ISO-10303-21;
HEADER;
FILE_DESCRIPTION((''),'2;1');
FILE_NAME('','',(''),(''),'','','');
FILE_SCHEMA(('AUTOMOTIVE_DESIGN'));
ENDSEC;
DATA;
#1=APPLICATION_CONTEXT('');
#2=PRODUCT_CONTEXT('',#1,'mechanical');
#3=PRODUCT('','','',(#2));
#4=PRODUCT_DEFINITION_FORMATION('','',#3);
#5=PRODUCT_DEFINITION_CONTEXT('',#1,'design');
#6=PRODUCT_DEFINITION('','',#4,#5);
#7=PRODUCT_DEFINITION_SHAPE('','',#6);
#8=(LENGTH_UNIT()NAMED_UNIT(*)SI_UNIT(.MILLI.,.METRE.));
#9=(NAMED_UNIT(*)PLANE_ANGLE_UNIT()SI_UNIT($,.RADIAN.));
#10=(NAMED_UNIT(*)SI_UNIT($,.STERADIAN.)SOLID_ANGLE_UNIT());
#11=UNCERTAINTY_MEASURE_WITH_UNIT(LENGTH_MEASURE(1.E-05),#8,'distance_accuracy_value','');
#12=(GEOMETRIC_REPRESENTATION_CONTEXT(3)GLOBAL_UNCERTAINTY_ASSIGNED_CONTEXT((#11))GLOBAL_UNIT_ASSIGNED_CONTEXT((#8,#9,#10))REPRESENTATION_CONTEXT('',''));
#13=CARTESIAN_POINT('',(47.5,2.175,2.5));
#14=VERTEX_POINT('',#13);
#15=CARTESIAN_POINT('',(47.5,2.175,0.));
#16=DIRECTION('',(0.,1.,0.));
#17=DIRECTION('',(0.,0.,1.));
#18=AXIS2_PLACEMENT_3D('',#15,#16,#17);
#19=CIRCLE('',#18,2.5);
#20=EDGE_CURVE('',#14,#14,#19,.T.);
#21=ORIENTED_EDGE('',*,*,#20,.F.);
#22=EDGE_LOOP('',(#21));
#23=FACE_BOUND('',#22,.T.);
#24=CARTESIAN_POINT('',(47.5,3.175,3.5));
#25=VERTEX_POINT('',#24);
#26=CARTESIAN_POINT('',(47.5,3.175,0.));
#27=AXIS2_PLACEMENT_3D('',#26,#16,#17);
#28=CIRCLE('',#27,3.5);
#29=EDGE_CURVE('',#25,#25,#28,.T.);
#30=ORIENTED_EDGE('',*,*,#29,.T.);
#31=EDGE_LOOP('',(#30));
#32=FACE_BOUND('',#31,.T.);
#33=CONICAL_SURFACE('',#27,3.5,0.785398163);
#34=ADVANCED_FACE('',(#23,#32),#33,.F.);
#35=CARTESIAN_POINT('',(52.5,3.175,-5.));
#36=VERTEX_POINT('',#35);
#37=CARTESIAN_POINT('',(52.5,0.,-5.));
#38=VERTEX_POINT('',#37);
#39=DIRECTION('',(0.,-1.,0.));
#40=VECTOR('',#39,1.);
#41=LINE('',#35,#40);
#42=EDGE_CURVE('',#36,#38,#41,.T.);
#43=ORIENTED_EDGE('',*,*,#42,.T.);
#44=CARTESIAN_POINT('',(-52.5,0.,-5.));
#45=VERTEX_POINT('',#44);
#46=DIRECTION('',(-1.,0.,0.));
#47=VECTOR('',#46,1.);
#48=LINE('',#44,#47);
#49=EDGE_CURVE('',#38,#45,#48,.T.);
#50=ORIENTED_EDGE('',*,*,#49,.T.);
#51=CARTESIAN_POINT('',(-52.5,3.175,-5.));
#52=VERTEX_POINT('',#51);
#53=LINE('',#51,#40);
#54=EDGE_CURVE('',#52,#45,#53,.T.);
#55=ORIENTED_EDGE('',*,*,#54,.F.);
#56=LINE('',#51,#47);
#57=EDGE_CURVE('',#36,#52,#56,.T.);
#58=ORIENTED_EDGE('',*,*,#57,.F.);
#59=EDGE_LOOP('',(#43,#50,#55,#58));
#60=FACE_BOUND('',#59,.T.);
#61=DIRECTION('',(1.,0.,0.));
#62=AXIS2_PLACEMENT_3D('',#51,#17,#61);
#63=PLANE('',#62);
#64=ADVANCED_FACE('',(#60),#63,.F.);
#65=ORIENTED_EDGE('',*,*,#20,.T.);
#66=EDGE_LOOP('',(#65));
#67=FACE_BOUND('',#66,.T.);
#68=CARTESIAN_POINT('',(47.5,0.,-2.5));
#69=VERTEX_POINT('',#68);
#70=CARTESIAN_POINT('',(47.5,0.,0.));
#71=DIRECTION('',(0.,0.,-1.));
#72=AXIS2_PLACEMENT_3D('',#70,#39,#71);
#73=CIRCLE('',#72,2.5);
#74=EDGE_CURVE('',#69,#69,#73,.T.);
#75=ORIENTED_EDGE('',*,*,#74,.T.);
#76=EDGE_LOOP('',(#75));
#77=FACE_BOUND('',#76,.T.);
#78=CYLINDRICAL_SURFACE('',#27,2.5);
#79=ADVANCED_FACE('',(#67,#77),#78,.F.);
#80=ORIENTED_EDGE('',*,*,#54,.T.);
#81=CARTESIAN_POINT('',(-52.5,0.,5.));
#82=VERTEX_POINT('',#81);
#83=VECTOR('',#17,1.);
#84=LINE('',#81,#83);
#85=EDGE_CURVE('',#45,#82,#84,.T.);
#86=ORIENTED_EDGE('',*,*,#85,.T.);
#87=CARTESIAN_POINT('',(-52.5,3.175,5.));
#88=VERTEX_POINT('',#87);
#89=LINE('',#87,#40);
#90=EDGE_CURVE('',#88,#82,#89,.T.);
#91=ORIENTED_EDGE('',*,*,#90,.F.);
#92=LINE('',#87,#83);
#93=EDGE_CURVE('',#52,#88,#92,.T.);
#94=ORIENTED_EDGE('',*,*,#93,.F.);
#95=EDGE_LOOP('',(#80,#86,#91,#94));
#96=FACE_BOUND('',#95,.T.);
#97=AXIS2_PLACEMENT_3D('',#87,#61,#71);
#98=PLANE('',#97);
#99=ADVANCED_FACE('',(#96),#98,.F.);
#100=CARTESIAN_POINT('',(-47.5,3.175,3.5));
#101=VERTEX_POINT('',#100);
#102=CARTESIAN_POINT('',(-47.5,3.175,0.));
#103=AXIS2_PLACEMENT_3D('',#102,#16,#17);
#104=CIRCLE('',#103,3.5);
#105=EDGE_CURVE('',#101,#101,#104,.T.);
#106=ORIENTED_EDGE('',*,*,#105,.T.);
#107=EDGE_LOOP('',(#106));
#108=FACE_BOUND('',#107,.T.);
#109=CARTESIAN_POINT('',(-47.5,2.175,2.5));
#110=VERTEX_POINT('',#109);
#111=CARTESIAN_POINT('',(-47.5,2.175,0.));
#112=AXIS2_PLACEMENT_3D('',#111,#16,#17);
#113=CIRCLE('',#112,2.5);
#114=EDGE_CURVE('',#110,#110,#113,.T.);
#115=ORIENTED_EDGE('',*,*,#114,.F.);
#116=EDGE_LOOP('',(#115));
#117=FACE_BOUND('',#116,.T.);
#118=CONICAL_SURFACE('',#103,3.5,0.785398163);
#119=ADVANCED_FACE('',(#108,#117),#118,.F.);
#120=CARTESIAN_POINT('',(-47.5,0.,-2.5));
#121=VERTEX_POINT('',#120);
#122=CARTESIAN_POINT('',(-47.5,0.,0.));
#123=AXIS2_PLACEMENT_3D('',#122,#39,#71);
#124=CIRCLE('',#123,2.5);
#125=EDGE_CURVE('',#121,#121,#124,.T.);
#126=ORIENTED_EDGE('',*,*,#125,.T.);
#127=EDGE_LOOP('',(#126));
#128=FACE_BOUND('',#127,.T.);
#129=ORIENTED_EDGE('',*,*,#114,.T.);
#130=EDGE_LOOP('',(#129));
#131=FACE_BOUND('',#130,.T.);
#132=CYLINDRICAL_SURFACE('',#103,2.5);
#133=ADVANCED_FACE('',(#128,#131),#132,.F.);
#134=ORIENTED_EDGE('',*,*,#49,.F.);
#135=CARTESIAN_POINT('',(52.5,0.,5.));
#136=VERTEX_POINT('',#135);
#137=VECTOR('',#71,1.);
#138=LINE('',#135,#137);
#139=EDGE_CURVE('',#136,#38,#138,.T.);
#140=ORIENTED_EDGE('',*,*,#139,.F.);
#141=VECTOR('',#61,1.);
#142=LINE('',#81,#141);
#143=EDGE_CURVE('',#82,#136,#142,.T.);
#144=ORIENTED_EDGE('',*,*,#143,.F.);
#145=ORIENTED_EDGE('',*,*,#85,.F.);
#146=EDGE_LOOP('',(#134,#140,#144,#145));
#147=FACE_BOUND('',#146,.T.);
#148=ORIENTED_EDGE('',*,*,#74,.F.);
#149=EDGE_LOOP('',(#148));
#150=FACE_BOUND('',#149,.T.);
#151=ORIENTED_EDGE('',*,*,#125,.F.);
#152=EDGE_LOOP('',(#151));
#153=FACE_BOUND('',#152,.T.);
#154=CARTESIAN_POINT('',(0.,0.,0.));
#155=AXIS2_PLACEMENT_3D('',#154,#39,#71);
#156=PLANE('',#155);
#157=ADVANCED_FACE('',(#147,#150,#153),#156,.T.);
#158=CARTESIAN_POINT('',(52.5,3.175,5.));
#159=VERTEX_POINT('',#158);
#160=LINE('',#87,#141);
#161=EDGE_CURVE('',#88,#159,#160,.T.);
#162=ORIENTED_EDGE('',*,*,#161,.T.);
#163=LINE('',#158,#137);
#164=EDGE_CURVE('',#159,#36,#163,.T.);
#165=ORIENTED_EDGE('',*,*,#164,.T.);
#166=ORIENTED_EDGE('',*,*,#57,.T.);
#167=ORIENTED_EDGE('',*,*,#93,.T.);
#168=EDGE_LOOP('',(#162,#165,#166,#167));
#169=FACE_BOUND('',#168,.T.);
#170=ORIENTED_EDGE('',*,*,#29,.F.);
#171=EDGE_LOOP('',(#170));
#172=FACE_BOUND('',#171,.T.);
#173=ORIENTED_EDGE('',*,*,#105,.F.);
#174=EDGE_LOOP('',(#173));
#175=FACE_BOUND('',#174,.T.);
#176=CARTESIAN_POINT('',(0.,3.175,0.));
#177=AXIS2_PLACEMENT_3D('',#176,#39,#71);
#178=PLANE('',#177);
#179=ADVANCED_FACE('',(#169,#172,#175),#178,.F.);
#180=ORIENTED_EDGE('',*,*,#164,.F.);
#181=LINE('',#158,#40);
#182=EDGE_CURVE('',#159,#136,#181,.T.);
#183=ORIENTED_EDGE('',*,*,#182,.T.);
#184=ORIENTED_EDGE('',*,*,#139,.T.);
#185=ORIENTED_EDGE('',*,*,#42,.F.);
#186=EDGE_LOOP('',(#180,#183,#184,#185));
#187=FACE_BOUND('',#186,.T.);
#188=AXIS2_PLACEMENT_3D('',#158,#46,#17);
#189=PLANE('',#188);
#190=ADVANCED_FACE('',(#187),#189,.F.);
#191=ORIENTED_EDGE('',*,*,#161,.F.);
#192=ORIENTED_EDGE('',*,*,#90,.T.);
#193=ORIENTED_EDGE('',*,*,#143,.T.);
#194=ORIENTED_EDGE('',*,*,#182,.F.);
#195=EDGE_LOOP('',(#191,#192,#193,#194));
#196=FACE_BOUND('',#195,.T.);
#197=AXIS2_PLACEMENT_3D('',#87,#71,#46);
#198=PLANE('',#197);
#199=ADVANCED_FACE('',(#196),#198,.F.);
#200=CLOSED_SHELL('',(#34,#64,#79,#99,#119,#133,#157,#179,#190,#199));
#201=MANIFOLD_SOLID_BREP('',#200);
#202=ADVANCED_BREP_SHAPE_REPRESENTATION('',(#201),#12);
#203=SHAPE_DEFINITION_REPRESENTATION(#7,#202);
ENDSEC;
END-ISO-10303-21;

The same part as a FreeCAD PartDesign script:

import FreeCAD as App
import Part
import Sketcher

V = App.Vector
Q = App.Units.Quantity


def add_polygon(sketch, points):
    """Adds a closed chain of lines whose ends are joined by coincident constraints."""
    first, n = sketch.GeometryCount, len(points)
    for a, b in zip(points, points[1:] + points[:1]):
        sketch.addGeometry(Part.LineSegment(App.Vector(*a, 0), App.Vector(*b, 0)), False)
    for i in range(n):
        sketch.addConstraint(Sketcher.Constraint("Coincident", first + i, 2, first + (i + 1) % n, 1))

doc = App.newDocument("Part")
body = doc.addObject("PartDesign::Body", "Body")

sketch1 = body.newObject("Sketcher::SketchObject", "Sketch")
sketch1.AttachmentSupport = (doc.getObject("XZ_Plane"), [""])
sketch1.MapMode = "FlatFace"
add_polygon(sketch1, [(-52.5, -5), (-52.5, 5), (52.5, 5), (52.5, -5)])
sketch1.addConstraint(Sketcher.Constraint("Vertical", 0))
sketch1.addConstraint(Sketcher.Constraint("Horizontal", 1))
sketch1.addConstraint(Sketcher.Constraint("Vertical", 2))
sketch1.addConstraint(Sketcher.Constraint("Horizontal", 3))
sketch1.addConstraint(Sketcher.Constraint("Symmetric", 0, 2, 2, 2, -1, 1))
sketch1.addConstraint(Sketcher.Constraint("DistanceX", 1, 1, 1, 2, 105.0))
sketch1.addConstraint(Sketcher.Constraint("DistanceY", 0, 1, 0, 2, 10.0))
pad1 = body.newObject("PartDesign::Pad", "Pad")
pad1.Profile = sketch1
pad1.Length = 3.175
pad1.Reversed = True

sketch2 = body.newObject("Sketcher::SketchObject", "Sketch001")
sketch2.AttachmentSupport = (doc.getObject("YZ_Plane"), [""])
sketch2.MapMode = "FlatFace"
sketch2.AttachmentOffset = App.Placement(V(0, 0, 47.5), App.Rotation())
add_polygon(sketch2, [(0, 0), (3.175, 0), (3.175, 3.5), (2.175, 2.5), (0, 2.5)])
sketch2.addConstraint(Sketcher.Constraint("Horizontal", 0))
sketch2.addConstraint(Sketcher.Constraint("Vertical", 1))
sketch2.addConstraint(Sketcher.Constraint("Horizontal", 3))
sketch2.addConstraint(Sketcher.Constraint("Vertical", 4))
sketch2.addConstraint(Sketcher.Constraint("Coincident", 4, 2, -1, 1))
sketch2.addConstraint(Sketcher.Constraint("Angle", 2, Q("-135 deg")))
sketch2.addConstraint(Sketcher.Constraint("DistanceY", 1, 1, 1, 2, 3.5))
sketch2.addConstraint(Sketcher.Constraint("DistanceY", 4, 2, 4, 1, 2.5))
sketch2.addConstraint(Sketcher.Constraint("DistanceX", 0, 1, 0, 2, 3.175))
groove = body.newObject("PartDesign::Groove", "Groove")
groove.Profile = sketch2
groove.ReferenceAxis = (sketch2, ["H_Axis"])
groove.Angle = 360
doc.recompute()

linearpattern = body.newObject("PartDesign::LinearPattern", "LinearPattern")
linearpattern.Originals = [groove]
linearpattern.Direction = (doc.getObject("X_Axis"), [""])
linearpattern.Mode = "offset"
linearpattern.Offset = 95
linearpattern.Occurrences = 2
linearpattern.Reversed = True
body.Tip = linearpattern

doc.recompute()
